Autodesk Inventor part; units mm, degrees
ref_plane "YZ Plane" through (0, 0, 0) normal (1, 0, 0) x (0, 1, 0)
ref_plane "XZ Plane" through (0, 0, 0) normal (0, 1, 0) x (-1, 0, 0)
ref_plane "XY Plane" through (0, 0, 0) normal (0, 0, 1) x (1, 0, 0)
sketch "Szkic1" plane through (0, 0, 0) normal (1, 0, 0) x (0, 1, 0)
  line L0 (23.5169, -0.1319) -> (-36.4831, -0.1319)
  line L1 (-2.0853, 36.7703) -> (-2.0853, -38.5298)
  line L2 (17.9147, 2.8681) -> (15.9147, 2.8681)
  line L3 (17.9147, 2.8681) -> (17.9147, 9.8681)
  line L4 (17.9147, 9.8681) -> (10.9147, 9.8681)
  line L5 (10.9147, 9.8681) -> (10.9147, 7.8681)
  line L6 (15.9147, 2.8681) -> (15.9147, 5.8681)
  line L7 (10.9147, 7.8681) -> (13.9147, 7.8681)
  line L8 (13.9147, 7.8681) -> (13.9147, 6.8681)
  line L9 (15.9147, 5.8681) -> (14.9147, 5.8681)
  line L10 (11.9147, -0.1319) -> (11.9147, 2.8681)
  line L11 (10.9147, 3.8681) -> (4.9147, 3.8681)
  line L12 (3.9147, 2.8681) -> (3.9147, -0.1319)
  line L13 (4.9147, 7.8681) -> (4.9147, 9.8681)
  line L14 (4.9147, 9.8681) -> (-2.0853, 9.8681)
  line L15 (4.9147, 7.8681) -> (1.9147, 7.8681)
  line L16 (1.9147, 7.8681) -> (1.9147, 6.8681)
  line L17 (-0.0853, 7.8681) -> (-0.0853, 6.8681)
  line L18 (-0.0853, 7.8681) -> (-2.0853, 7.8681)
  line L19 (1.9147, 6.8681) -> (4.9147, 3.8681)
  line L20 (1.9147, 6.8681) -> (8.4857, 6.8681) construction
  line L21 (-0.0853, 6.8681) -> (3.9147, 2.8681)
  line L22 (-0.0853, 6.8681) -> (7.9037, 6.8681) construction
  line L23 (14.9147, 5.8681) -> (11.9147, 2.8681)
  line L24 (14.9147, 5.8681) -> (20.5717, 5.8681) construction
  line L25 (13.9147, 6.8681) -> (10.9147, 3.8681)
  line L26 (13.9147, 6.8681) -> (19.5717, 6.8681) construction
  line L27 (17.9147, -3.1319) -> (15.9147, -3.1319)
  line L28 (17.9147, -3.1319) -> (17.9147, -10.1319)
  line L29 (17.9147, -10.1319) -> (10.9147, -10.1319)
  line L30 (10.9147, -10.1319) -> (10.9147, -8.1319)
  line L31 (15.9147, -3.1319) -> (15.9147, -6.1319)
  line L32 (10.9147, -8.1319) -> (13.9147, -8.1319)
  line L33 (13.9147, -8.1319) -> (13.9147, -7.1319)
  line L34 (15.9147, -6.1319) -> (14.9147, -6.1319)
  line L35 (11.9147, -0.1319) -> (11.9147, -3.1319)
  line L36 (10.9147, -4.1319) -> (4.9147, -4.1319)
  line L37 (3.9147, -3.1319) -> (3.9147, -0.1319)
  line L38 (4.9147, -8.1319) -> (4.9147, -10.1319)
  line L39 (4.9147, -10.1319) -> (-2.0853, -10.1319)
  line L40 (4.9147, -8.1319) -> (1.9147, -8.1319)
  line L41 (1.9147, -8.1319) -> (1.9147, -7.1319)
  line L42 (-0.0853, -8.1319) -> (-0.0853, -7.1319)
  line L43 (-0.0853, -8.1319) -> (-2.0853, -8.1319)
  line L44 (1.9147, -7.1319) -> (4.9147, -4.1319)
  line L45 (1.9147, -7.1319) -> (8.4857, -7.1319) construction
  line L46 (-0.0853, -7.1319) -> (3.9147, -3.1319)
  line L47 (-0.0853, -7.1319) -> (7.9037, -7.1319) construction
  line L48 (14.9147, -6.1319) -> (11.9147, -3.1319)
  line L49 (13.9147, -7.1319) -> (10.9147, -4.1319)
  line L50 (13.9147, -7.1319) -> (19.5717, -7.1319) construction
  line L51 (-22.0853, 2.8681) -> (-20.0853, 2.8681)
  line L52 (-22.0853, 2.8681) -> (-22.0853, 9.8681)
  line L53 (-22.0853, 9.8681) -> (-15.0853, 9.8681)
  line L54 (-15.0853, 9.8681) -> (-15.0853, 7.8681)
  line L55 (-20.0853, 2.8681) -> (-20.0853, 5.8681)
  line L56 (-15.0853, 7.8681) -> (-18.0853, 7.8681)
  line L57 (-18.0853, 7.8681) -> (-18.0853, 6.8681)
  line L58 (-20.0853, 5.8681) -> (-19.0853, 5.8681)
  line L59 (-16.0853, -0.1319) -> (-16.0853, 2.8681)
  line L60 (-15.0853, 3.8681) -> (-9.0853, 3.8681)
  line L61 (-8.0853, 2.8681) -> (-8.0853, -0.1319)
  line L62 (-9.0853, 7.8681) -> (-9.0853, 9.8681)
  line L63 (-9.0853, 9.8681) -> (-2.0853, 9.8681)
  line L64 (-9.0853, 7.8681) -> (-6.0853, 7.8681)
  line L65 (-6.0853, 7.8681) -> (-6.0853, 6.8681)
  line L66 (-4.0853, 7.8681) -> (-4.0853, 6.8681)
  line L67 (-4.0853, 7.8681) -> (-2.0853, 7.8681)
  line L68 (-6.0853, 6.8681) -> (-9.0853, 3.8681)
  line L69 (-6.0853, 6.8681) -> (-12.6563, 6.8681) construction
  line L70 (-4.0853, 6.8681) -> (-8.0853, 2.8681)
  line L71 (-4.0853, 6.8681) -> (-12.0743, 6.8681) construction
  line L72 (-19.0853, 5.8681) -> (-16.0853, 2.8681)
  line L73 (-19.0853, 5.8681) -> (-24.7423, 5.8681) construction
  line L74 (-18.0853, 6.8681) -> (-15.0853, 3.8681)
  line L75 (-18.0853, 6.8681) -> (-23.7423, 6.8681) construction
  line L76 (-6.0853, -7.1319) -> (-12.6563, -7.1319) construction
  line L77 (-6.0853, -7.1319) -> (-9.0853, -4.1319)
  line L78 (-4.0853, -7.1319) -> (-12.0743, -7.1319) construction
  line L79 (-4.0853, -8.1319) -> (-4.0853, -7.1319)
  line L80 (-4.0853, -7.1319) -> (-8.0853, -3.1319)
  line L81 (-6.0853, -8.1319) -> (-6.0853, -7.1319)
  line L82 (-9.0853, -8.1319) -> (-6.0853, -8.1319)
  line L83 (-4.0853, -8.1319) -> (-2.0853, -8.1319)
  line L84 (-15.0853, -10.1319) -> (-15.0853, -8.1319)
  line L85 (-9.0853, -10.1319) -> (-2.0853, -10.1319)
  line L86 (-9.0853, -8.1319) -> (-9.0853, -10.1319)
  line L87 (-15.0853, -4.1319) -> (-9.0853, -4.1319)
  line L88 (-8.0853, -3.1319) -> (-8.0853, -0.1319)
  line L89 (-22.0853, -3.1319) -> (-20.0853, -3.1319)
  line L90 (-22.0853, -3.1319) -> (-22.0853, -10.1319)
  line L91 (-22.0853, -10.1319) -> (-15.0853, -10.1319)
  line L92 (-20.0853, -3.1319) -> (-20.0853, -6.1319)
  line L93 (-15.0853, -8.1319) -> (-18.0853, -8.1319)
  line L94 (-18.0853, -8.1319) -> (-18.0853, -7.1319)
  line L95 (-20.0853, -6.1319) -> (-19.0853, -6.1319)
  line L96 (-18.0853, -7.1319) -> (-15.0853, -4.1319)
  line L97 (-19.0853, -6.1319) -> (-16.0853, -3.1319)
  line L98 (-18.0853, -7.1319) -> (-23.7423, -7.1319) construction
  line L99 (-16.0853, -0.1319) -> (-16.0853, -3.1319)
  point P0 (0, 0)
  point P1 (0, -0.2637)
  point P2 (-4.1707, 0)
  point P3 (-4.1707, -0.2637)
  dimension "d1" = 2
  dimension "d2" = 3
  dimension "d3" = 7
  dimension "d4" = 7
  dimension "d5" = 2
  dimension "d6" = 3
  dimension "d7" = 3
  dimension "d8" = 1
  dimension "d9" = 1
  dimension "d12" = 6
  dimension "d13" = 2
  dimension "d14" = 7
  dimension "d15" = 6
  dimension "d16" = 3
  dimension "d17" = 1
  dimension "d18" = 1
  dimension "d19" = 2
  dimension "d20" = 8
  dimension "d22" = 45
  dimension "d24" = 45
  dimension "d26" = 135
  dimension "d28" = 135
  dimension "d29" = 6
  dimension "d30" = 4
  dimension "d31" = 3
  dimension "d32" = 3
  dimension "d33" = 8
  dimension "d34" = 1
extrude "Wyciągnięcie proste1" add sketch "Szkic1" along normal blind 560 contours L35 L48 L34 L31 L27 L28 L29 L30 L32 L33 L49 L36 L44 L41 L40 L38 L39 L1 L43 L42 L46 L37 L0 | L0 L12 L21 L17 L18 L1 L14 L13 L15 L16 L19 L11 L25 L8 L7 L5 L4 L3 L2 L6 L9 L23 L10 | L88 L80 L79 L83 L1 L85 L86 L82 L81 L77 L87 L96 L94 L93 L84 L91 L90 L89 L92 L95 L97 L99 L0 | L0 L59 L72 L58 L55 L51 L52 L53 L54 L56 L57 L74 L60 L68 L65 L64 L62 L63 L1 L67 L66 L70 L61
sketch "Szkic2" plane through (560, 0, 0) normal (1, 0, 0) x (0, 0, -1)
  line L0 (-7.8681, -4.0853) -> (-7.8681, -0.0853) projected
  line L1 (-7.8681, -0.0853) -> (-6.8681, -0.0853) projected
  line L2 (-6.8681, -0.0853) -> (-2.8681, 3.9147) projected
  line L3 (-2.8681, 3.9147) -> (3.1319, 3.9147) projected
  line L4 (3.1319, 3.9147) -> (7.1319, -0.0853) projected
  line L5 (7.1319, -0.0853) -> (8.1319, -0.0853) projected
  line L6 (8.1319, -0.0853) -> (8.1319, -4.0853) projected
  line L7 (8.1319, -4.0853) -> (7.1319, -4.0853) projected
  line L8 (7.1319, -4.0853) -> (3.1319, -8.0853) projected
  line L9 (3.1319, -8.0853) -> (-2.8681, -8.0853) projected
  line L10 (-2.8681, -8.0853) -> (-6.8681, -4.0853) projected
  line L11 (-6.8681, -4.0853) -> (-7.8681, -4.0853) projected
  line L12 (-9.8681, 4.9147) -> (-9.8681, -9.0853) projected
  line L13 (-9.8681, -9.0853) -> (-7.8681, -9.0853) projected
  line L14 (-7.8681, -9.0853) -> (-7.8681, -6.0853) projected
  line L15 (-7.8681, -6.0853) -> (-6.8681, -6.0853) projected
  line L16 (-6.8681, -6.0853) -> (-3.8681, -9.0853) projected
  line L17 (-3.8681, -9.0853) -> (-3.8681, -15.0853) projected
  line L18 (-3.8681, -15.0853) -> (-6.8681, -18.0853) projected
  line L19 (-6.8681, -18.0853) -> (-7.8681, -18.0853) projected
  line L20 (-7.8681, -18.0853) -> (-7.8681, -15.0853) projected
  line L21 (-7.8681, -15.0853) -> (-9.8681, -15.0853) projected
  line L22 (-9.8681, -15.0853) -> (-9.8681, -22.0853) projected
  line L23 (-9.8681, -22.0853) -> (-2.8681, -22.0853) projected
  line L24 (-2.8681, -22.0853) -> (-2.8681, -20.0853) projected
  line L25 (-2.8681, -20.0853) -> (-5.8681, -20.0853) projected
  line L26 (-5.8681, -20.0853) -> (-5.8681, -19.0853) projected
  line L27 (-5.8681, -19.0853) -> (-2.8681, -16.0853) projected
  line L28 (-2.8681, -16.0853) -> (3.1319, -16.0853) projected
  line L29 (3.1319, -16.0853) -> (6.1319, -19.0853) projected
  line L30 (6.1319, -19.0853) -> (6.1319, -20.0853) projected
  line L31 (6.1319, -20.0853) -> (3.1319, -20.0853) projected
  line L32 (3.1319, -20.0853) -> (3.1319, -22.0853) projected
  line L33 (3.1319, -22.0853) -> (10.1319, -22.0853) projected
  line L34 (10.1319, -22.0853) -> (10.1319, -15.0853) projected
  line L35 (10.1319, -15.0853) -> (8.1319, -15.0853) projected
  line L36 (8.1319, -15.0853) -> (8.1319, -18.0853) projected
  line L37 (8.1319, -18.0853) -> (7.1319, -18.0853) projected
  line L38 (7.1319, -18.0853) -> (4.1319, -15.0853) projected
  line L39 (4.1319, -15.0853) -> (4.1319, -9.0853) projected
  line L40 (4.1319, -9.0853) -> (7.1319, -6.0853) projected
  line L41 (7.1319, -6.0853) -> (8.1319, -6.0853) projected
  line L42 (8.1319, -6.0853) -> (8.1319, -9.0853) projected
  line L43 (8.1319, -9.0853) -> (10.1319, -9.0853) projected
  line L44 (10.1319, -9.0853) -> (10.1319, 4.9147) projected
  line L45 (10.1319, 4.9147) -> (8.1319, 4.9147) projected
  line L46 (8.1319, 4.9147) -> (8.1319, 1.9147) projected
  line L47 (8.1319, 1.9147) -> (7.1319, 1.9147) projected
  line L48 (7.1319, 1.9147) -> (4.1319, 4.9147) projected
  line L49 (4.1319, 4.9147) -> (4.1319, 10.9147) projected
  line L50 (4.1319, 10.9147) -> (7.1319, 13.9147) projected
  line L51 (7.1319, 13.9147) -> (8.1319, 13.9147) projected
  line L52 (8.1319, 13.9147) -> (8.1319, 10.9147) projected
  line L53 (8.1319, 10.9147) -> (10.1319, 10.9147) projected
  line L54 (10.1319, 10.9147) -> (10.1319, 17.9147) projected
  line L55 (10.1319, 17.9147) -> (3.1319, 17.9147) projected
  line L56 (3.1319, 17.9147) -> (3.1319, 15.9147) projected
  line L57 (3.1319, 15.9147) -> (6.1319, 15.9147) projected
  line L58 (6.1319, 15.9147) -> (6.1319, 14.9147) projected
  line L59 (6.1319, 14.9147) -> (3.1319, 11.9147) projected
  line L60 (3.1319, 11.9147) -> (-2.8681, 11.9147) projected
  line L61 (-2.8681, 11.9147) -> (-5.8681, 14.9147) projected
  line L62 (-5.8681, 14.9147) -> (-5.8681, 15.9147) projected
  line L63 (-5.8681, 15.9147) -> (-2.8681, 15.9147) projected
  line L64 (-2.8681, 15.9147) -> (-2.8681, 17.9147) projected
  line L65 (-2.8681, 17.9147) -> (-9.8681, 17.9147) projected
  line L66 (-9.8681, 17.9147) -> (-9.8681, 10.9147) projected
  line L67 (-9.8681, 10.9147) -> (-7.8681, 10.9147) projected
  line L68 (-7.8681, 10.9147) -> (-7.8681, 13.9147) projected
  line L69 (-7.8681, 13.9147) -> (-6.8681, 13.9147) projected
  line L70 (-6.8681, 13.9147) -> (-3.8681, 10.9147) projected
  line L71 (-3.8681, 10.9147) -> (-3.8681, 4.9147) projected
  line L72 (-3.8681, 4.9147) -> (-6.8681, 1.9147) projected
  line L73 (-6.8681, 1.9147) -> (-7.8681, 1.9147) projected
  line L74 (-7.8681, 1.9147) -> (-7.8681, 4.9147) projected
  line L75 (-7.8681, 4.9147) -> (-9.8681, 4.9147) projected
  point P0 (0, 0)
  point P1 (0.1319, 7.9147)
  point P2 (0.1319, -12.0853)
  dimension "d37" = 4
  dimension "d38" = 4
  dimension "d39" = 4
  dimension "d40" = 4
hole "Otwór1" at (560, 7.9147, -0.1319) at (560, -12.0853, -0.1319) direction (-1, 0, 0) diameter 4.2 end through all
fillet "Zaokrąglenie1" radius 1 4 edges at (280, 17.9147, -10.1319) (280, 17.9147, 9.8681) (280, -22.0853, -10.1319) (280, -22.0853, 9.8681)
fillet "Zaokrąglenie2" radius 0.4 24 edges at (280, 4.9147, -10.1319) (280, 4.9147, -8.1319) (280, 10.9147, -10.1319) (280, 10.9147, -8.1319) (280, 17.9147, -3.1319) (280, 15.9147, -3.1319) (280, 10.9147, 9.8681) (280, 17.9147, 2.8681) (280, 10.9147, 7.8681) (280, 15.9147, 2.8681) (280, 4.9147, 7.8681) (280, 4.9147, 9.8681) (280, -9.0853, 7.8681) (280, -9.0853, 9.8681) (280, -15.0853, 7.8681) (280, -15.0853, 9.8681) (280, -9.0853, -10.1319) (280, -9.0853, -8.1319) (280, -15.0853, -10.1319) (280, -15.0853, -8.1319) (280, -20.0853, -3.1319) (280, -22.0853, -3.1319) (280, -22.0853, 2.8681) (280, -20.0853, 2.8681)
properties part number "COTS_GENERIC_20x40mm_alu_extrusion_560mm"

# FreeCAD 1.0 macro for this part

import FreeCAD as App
import Part
import Sketcher

V = App.Vector
Q = App.Units.Quantity


def edges_at(feature, points):
    """Names of the edges that pass closest to the given points."""
    edges = feature.Shape.Edges
    near = lambda p: min(range(len(edges)), key=lambda i: edges[i].distToShape(Part.Vertex(*p))[0])
    return sorted({f"Edge{near(p) + 1}" for p in points})

doc = App.newDocument("Part")
body = doc.addObject("PartDesign::Body", "Body")

# Sketch on YZ plane
sketch1 = body.newObject("Sketcher::SketchObject", "Sketch")
sketch1.AttachmentSupport = (doc.getObject("YZ_Plane"), [""])
sketch1.MapMode = "FlatFace"
sketch1.addGeometry([
    Part.LineSegment(V(11.9147, -3.1319, 0), V(11.9147, 2.8681, 0)),  # 0
    Part.LineSegment(V(11.9147, 2.8681, 0), V(14.9147, 5.8681, 0)),  # 1
    Part.LineSegment(V(14.9147, 5.8681, 0), V(15.9147, 5.8681, 0)),  # 2
    Part.LineSegment(V(15.9147, 5.8681, 0), V(15.9147, 2.8681, 0)),  # 3
    Part.LineSegment(V(15.9147, 2.8681, 0), V(17.9147, 2.8681, 0)),  # 4
    Part.LineSegment(V(17.9147, 2.8681, 0), V(17.9147, 9.8681, 0)),  # 5
    Part.LineSegment(V(17.9147, 9.8681, 0), V(10.9147, 9.8681, 0)),  # 6
    Part.LineSegment(V(10.9147, 9.8681, 0), V(10.9147, 7.8681, 0)),  # 7
    Part.LineSegment(V(10.9147, 7.8681, 0), V(13.9147, 7.8681, 0)),  # 8
    Part.LineSegment(V(13.9147, 7.8681, 0), V(13.9147, 6.8681, 0)),  # 9
    Part.LineSegment(V(13.9147, 6.8681, 0), V(10.9147, 3.8681, 0)),  # 10
    Part.LineSegment(V(10.9147, 3.8681, 0), V(4.9147, 3.8681, 0)),  # 11
    Part.LineSegment(V(4.9147, 3.8681, 0), V(1.9147, 6.8681, 0)),  # 12
    Part.LineSegment(V(1.9147, 6.8681, 0), V(1.9147, 7.8681, 0)),  # 13
    Part.LineSegment(V(1.9147, 7.8681, 0), V(4.9147, 7.8681, 0)),  # 14
    Part.LineSegment(V(4.9147, 7.8681, 0), V(4.9147, 9.8681, 0)),  # 15
    Part.LineSegment(V(4.9147, 9.8681, 0), V(-9.0853, 9.8681, 0)),  # 16
    Part.LineSegment(V(-9.0853, 9.8681, 0), V(-9.0853, 7.8681, 0)),  # 17
    Part.LineSegment(V(-9.0853, 7.8681, 0), V(-6.0853, 7.8681, 0)),  # 18
    Part.LineSegment(V(-6.0853, 7.8681, 0), V(-6.0853, 6.8681, 0)),  # 19
    Part.LineSegment(V(-6.0853, 6.8681, 0), V(-9.0853, 3.8681, 0)),  # 20
    Part.LineSegment(V(-9.0853, 3.8681, 0), V(-15.0853, 3.8681, 0)),  # 21
    Part.LineSegment(V(-15.0853, 3.8681, 0), V(-18.0853, 6.8681, 0)),  # 22
    Part.LineSegment(V(-18.0853, 6.8681, 0), V(-18.0853, 7.8681, 0)),  # 23
    Part.LineSegment(V(-18.0853, 7.8681, 0), V(-15.0853, 7.8681, 0)),  # 24
    Part.LineSegment(V(-15.0853, 7.8681, 0), V(-15.0853, 9.8681, 0)),  # 25
    Part.LineSegment(V(-15.0853, 9.8681, 0), V(-22.0853, 9.8681, 0)),  # 26
    Part.LineSegment(V(-22.0853, 9.8681, 0), V(-22.0853, 2.8681, 0)),  # 27
    Part.LineSegment(V(-22.0853, 2.8681, 0), V(-20.0853, 2.8681, 0)),  # 28
    Part.LineSegment(V(-20.0853, 2.8681, 0), V(-20.0853, 5.8681, 0)),  # 29
    Part.LineSegment(V(-20.0853, 5.8681, 0), V(-19.0853, 5.8681, 0)),  # 30
    Part.LineSegment(V(-19.0853, 5.8681, 0), V(-16.0853, 2.8681, 0)),  # 31
    Part.LineSegment(V(-16.0853, 2.8681, 0), V(-16.0853, -3.1319, 0)),  # 32
    Part.LineSegment(V(-16.0853, -3.1319, 0), V(-19.0853, -6.1319, 0)),  # 33
    Part.LineSegment(V(-19.0853, -6.1319, 0), V(-20.0853, -6.1319, 0)),  # 34
    Part.LineSegment(V(-20.0853, -6.1319, 0), V(-20.0853, -3.1319, 0)),  # 35
    Part.LineSegment(V(-20.0853, -3.1319, 0), V(-22.0853, -3.1319, 0)),  # 36
    Part.LineSegment(V(-22.0853, -3.1319, 0), V(-22.0853, -10.1319, 0)),  # 37
    Part.LineSegment(V(-22.0853, -10.1319, 0), V(-15.0853, -10.1319, 0)),  # 38
    Part.LineSegment(V(-15.0853, -10.1319, 0), V(-15.0853, -8.1319, 0)),  # 39
    Part.LineSegment(V(-15.0853, -8.1319, 0), V(-18.0853, -8.1319, 0)),  # 40
    Part.LineSegment(V(-18.0853, -8.1319, 0), V(-18.0853, -7.1319, 0)),  # 41
    Part.LineSegment(V(-18.0853, -7.1319, 0), V(-15.0853, -4.1319, 0)),  # 42
    Part.LineSegment(V(-15.0853, -4.1319, 0), V(-9.0853, -4.1319, 0)),  # 43
    Part.LineSegment(V(-9.0853, -4.1319, 0), V(-6.0853, -7.1319, 0)),  # 44
    Part.LineSegment(V(-6.0853, -7.1319, 0), V(-6.0853, -8.1319, 0)),  # 45
    Part.LineSegment(V(-6.0853, -8.1319, 0), V(-9.0853, -8.1319, 0)),  # 46
    Part.LineSegment(V(-9.0853, -8.1319, 0), V(-9.0853, -10.1319, 0)),  # 47
    Part.LineSegment(V(-9.0853, -10.1319, 0), V(4.9147, -10.1319, 0)),  # 48
    Part.LineSegment(V(4.9147, -10.1319, 0), V(4.9147, -8.1319, 0)),  # 49
    Part.LineSegment(V(4.9147, -8.1319, 0), V(1.9147, -8.1319, 0)),  # 50
    Part.LineSegment(V(1.9147, -8.1319, 0), V(1.9147, -7.1319, 0)),  # 51
    Part.LineSegment(V(1.9147, -7.1319, 0), V(4.9147, -4.1319, 0)),  # 52
    Part.LineSegment(V(4.9147, -4.1319, 0), V(10.9147, -4.1319, 0)),  # 53
    Part.LineSegment(V(10.9147, -4.1319, 0), V(13.9147, -7.1319, 0)),  # 54
    Part.LineSegment(V(13.9147, -7.1319, 0), V(13.9147, -8.1319, 0)),  # 55
    Part.LineSegment(V(13.9147, -8.1319, 0), V(10.9147, -8.1319, 0)),  # 56
    Part.LineSegment(V(10.9147, -8.1319, 0), V(10.9147, -10.1319, 0)),  # 57
    Part.LineSegment(V(10.9147, -10.1319, 0), V(17.9147, -10.1319, 0)),  # 58
    Part.LineSegment(V(17.9147, -10.1319, 0), V(17.9147, -3.1319, 0)),  # 59
    Part.LineSegment(V(17.9147, -3.1319, 0), V(15.9147, -3.1319, 0)),  # 60
    Part.LineSegment(V(15.9147, -3.1319, 0), V(15.9147, -6.1319, 0)),  # 61
    Part.LineSegment(V(15.9147, -6.1319, 0), V(14.9147, -6.1319, 0)),  # 62
    Part.LineSegment(V(14.9147, -6.1319, 0), V(11.9147, -3.1319, 0)),  # 63
    Part.LineSegment(V(-0.0853, -8.1319, 0), V(-4.0853, -8.1319, 0)),  # 64
    Part.LineSegment(V(-4.0853, -8.1319, 0), V(-4.0853, -7.1319, 0)),  # 65
    Part.LineSegment(V(-4.0853, -7.1319, 0), V(-8.0853, -3.1319, 0)),  # 66
    Part.LineSegment(V(-8.0853, -3.1319, 0), V(-8.0853, 2.8681, 0)),  # 67
    Part.LineSegment(V(-8.0853, 2.8681, 0), V(-4.0853, 6.8681, 0)),  # 68
    Part.LineSegment(V(-4.0853, 6.8681, 0), V(-4.0853, 7.8681, 0)),  # 69
    Part.LineSegment(V(-4.0853, 7.8681, 0), V(-0.0853, 7.8681, 0)),  # 70
    Part.LineSegment(V(-0.0853, 7.8681, 0), V(-0.0853, 6.8681, 0)),  # 71
    Part.LineSegment(V(-0.0853, 6.8681, 0), V(3.9147, 2.8681, 0)),  # 72
    Part.LineSegment(V(3.9147, 2.8681, 0), V(3.9147, -3.1319, 0)),  # 73
    Part.LineSegment(V(3.9147, -3.1319, 0), V(-0.0853, -7.1319, 0)),  # 74
    Part.LineSegment(V(-0.0853, -7.1319, 0), V(-0.0853, -8.1319, 0)),  # 75
], False)
sketch1.addConstraint([
    Sketcher.Constraint("Coincident", 0, 2, 1, 1),
    Sketcher.Constraint("Coincident", 1, 2, 2, 1),
    Sketcher.Constraint("Coincident", 2, 2, 3, 1),
    Sketcher.Constraint("Coincident", 3, 2, 4, 1),
    Sketcher.Constraint("Coincident", 4, 2, 5, 1),
    Sketcher.Constraint("Coincident", 5, 2, 6, 1),
    Sketcher.Constraint("Coincident", 6, 2, 7, 1),
    Sketcher.Constraint("Coincident", 7, 2, 8, 1),
    Sketcher.Constraint("Coincident", 8, 2, 9, 1),
    Sketcher.Constraint("Coincident", 9, 2, 10, 1),
    Sketcher.Constraint("Coincident", 10, 2, 11, 1),
    Sketcher.Constraint("Coincident", 11, 2, 12, 1),
    Sketcher.Constraint("Coincident", 12, 2, 13, 1),
    Sketcher.Constraint("Coincident", 13, 2, 14, 1),
    Sketcher.Constraint("Coincident", 14, 2, 15, 1),
    Sketcher.Constraint("Coincident", 15, 2, 16, 1),
    Sketcher.Constraint("Coincident", 16, 2, 17, 1),
    Sketcher.Constraint("Coincident", 17, 2, 18, 1),
    Sketcher.Constraint("Coincident", 18, 2, 19, 1),
    Sketcher.Constraint("Coincident", 19, 2, 20, 1),
    Sketcher.Constraint("Coincident", 20, 2, 21, 1),
    Sketcher.Constraint("Coincident", 21, 2, 22, 1),
    Sketcher.Constraint("Coincident", 22, 2, 23, 1),
    Sketcher.Constraint("Coincident", 23, 2, 24, 1),
    Sketcher.Constraint("Coincident", 24, 2, 25, 1),
    Sketcher.Constraint("Coincident", 25, 2, 26, 1),
    Sketcher.Constraint("Coincident", 26, 2, 27, 1),
    Sketcher.Constraint("Coincident", 27, 2, 28, 1),
    Sketcher.Constraint("Coincident", 28, 2, 29, 1),
    Sketcher.Constraint("Coincident", 29, 2, 30, 1),
    Sketcher.Constraint("Coincident", 30, 2, 31, 1),
    Sketcher.Constraint("Coincident", 31, 2, 32, 1),
    Sketcher.Constraint("Coincident", 32, 2, 33, 1),
    Sketcher.Constraint("Coincident", 33, 2, 34, 1),
    Sketcher.Constraint("Coincident", 34, 2, 35, 1),
    Sketcher.Constraint("Coincident", 35, 2, 36, 1),
    Sketcher.Constraint("Coincident", 36, 2, 37, 1),
    Sketcher.Constraint("Coincident", 37, 2, 38, 1),
    Sketcher.Constraint("Coincident", 38, 2, 39, 1),
    Sketcher.Constraint("Coincident", 39, 2, 40, 1),
    Sketcher.Constraint("Coincident", 40, 2, 41, 1),
    Sketcher.Constraint("Coincident", 41, 2, 42, 1),
    Sketcher.Constraint("Coincident", 42, 2, 43, 1),
    Sketcher.Constraint("Coincident", 43, 2, 44, 1),
    Sketcher.Constraint("Coincident", 44, 2, 45, 1),
    Sketcher.Constraint("Coincident", 45, 2, 46, 1),
    Sketcher.Constraint("Coincident", 46, 2, 47, 1),
    Sketcher.Constraint("Coincident", 47, 2, 48, 1),
    Sketcher.Constraint("Coincident", 48, 2, 49, 1),
    Sketcher.Constraint("Coincident", 49, 2, 50, 1),
    Sketcher.Constraint("Coincident", 50, 2, 51, 1),
    Sketcher.Constraint("Coincident", 51, 2, 52, 1),
    Sketcher.Constraint("Coincident", 52, 2, 53, 1),
    Sketcher.Constraint("Coincident", 53, 2, 54, 1),
    Sketcher.Constraint("Coincident", 54, 2, 55, 1),
    Sketcher.Constraint("Coincident", 55, 2, 56, 1),
    Sketcher.Constraint("Coincident", 56, 2, 57, 1),
    Sketcher.Constraint("Coincident", 57, 2, 58, 1),
    Sketcher.Constraint("Coincident", 58, 2, 59, 1),
    Sketcher.Constraint("Coincident", 59, 2, 60, 1),
    Sketcher.Constraint("Coincident", 60, 2, 61, 1),
    Sketcher.Constraint("Coincident", 61, 2, 62, 1),
    Sketcher.Constraint("Coincident", 62, 2, 63, 1),
    Sketcher.Constraint("Coincident", 63, 2, 0, 1),
    Sketcher.Constraint("Coincident", 64, 2, 65, 1),
    Sketcher.Constraint("Coincident", 65, 2, 66, 1),
    Sketcher.Constraint("Coincident", 66, 2, 67, 1),
    Sketcher.Constraint("Coincident", 67, 2, 68, 1),
    Sketcher.Constraint("Coincident", 68, 2, 69, 1),
    Sketcher.Constraint("Coincident", 69, 2, 70, 1),
    Sketcher.Constraint("Coincident", 70, 2, 71, 1),
    Sketcher.Constraint("Coincident", 71, 2, 72, 1),
    Sketcher.Constraint("Coincident", 72, 2, 73, 1),
    Sketcher.Constraint("Coincident", 73, 2, 74, 1),
    Sketcher.Constraint("Coincident", 74, 2, 75, 1),
    Sketcher.Constraint("Coincident", 75, 2, 64, 1),
    Sketcher.Constraint("Vertical", 0),
    Sketcher.Constraint("Horizontal", 2),
    Sketcher.Constraint("Vertical", 3),
    Sketcher.Constraint("Horizontal", 4),
    Sketcher.Constraint("Vertical", 5),
    Sketcher.Constraint("Horizontal", 6),
    Sketcher.Constraint("Vertical", 7),
    Sketcher.Constraint("Horizontal", 8),
    Sketcher.Constraint("Vertical", 9),
    Sketcher.Constraint("Horizontal", 11),
    Sketcher.Constraint("Vertical", 13),
    Sketcher.Constraint("Horizontal", 14),
    Sketcher.Constraint("Vertical", 15),
    Sketcher.Constraint("Horizontal", 16),
    Sketcher.Constraint("Vertical", 17),
    Sketcher.Constraint("Horizontal", 18),
    Sketcher.Constraint("Vertical", 19),
    Sketcher.Constraint("Horizontal", 21),
    Sketcher.Constraint("Vertical", 23),
    Sketcher.Constraint("Horizontal", 24),
    Sketcher.Constraint("Vertical", 25),
    Sketcher.Constraint("Horizontal", 26),
    Sketcher.Constraint("Vertical", 27),
    Sketcher.Constraint("Horizontal", 28),
    Sketcher.Constraint("Vertical", 29),
    Sketcher.Constraint("Horizontal", 30),
    Sketcher.Constraint("Vertical", 32),
    Sketcher.Constraint("Horizontal", 34),
    Sketcher.Constraint("Vertical", 35),
    Sketcher.Constraint("Horizontal", 36),
    Sketcher.Constraint("Vertical", 37),
    Sketcher.Constraint("Horizontal", 38),
    Sketcher.Constraint("Vertical", 39),
    Sketcher.Constraint("Horizontal", 40),
    Sketcher.Constraint("Vertical", 41),
    Sketcher.Constraint("Horizontal", 43),
    Sketcher.Constraint("Vertical", 45),
    Sketcher.Constraint("Horizontal", 46),
    Sketcher.Constraint("Vertical", 47),
    Sketcher.Constraint("Horizontal", 48),
    Sketcher.Constraint("Vertical", 49),
    Sketcher.Constraint("Horizontal", 50),
    Sketcher.Constraint("Vertical", 51),
    Sketcher.Constraint("Horizontal", 53),
    Sketcher.Constraint("Vertical", 55),
    Sketcher.Constraint("Horizontal", 56),
    Sketcher.Constraint("Vertical", 57),
    Sketcher.Constraint("Horizontal", 58),
    Sketcher.Constraint("Vertical", 59),
    Sketcher.Constraint("Horizontal", 60),
    Sketcher.Constraint("Vertical", 61),
    Sketcher.Constraint("Horizontal", 62),
    Sketcher.Constraint("Horizontal", 64),
    Sketcher.Constraint("Vertical", 65),
    Sketcher.Constraint("Vertical", 67),
    Sketcher.Constraint("Vertical", 69),
    Sketcher.Constraint("Horizontal", 70),
    Sketcher.Constraint("Vertical", 71),
    Sketcher.Constraint("Vertical", 73),
    Sketcher.Constraint("Vertical", 75),
    Sketcher.Constraint("Parallel", 1, 10),
    Sketcher.Constraint("Perpendicular", 10, 12),
    Sketcher.Constraint("Perpendicular", 12, 20),
    Sketcher.Constraint("Perpendicular", 20, 22),
    Sketcher.Constraint("Parallel", 22, 31),
    Sketcher.Constraint("Perpendicular", 31, 33),
    Sketcher.Constraint("Parallel", 33, 42),
    Sketcher.Constraint("Perpendicular", 42, 44),
    Sketcher.Constraint("Perpendicular", 44, 52),
    Sketcher.Constraint("Perpendicular", 52, 54),
    Sketcher.Constraint("Parallel", 54, 63),
    Sketcher.Constraint("Parallel", 63, 66),
    Sketcher.Constraint("Perpendicular", 66, 68),
    Sketcher.Constraint("Perpendicular", 68, 72),
    Sketcher.Constraint("Perpendicular", 72, 74),
    Sketcher.Constraint("Horizontal", 0, 2, 3, 2),
    Sketcher.Constraint("Horizontal", 9, 2, 12, 2),
    Sketcher.Constraint("Horizontal", 8, 2, 13, 2),
    Sketcher.Constraint("Horizontal", 6, 2, 15, 2),
    Sketcher.Constraint("Horizontal", 14, 2, 17, 2),
    Sketcher.Constraint("Horizontal", 12, 2, 19, 2),
    Sketcher.Constraint("Horizontal", 11, 2, 20, 2),
    Sketcher.Constraint("Horizontal", 19, 2, 22, 2),
    Sketcher.Constraint("Horizontal", 18, 2, 23, 2),
    Sketcher.Constraint("Horizontal", 16, 2, 25, 2),
    Sketcher.Constraint("Horizontal", 4, 2, 27, 2),
    Sketcher.Constraint("Horizontal", 2, 2, 29, 2),
    Sketcher.Constraint("Horizontal", 28, 2, 31, 2),
    Sketcher.Constraint("Horizontal", 32, 2, 35, 2),
    Sketcher.Constraint("Horizontal", 41, 2, 44, 2),
    Sketcher.Constraint("Horizontal", 40, 2, 45, 2),
    Sketcher.Constraint("Horizontal", 38, 2, 47, 2),
    Sketcher.Constraint("Horizontal", 46, 2, 49, 2),
    Sketcher.Constraint("Horizontal", 44, 2, 51, 2),
    Sketcher.Constraint("Horizontal", 43, 2, 52, 2),
    Sketcher.Constraint("Horizontal", 51, 2, 54, 2),
    Sketcher.Constraint("Horizontal", 50, 2, 55, 2),
    Sketcher.Constraint("Horizontal", 48, 2, 57, 2),
    Sketcher.Constraint("Horizontal", 36, 2, 59, 2),
    Sketcher.Constraint("Horizontal", 34, 2, 61, 2),
    Sketcher.Constraint("Horizontal", 60, 2, 63, 2),
    Sketcher.Constraint("Horizontal", 56, 2, 64, 2),
    Sketcher.Constraint("Horizontal", 54, 2, 65, 2),
    Sketcher.Constraint("Horizontal", 63, 2, 66, 2),
    Sketcher.Constraint("Horizontal", 31, 2, 67, 2),
    Sketcher.Constraint("Horizontal", 22, 2, 68, 2),
    Sketcher.Constraint("Horizontal", 24, 2, 69, 2),
    Sketcher.Constraint("Horizontal", 68, 2, 71, 2),
    Sketcher.Constraint("Horizontal", 67, 2, 72, 2),
    Sketcher.Constraint("Horizontal", 66, 2, 73, 2),
    Sketcher.Constraint("Horizontal", 65, 2, 74, 2),
    Sketcher.Constraint("Vertical", 7, 2, 10, 2),
    Sketcher.Constraint("Vertical", 11, 2, 14, 2),
    Sketcher.Constraint("Vertical", 17, 2, 20, 2),
    Sketcher.Constraint("Vertical", 21, 2, 24, 2),
    Sketcher.Constraint("Vertical", 30, 2, 33, 2),
    Sketcher.Constraint("Vertical", 29, 2, 34, 2),
    Sketcher.Constraint("Vertical", 27, 2, 36, 2),
    Sketcher.Constraint("Vertical", 25, 2, 38, 2),
    Sketcher.Constraint("Vertical", 23, 2, 40, 2),
    Sketcher.Constraint("Vertical", 39, 2, 42, 2),
    Sketcher.Constraint("Vertical", 20, 2, 43, 2),
    Sketcher.Constraint("Vertical", 19, 2, 44, 2),
    Sketcher.Constraint("Vertical", 43, 2, 46, 2),
    Sketcher.Constraint("Vertical", 15, 2, 48, 2),
    Sketcher.Constraint("Vertical", 13, 2, 50, 2),
    Sketcher.Constraint("Vertical", 10, 2, 53, 2),
    Sketcher.Constraint("Vertical", 53, 2, 56, 2),
    Sketcher.Constraint("Vertical", 5, 2, 58, 2),
    Sketcher.Constraint("Vertical", 3, 2, 60, 2),
    Sketcher.Constraint("Vertical", 65, 2, 68, 2),
    Sketcher.Constraint("Equal", 11, 21),
    Sketcher.Constraint("Equal", 6, 26),
    Sketcher.Constraint("Equal", 4, 28),
    Sketcher.Constraint("Equal", 2, 30),
    Sketcher.Constraint("Equal", 53, 0),
    Sketcher.Constraint("Equal", 56, 3),
    Sketcher.Constraint("Equal", 58, 5),
    Sketcher.Constraint("Equal", 60, 7),
    Sketcher.Constraint("Equal", 62, 9),
    Sketcher.Constraint("Equal", 27, 37),
    Sketcher.Constraint("Equal", 25, 39),
    Sketcher.Constraint("DistanceX", 2, 1, 2, 2, Q("1 mm")),
    Sketcher.Constraint("DistanceX", 4, 1, 4, 2, Q("2 mm")),
    Sketcher.Constraint("DistanceX", 6, 2, 6, 1, Q("7 mm")),
    Sketcher.Constraint("DistanceX", 8, 1, 8, 2, Q("3 mm")),
    Sketcher.Constraint("DistanceX", 11, 2, 11, 1, Q("6 mm")),
    Sketcher.Constraint("DistanceX", 64, 2, 64, 1, Q("4 mm")),
    Sketcher.Constraint("DistanceX", 16, 2, 16, 1, Q("14 mm")),
    Sketcher.Constraint("DistanceY", -1, 1, 0, 2, Q("2.868 mm")),
    Sketcher.Constraint("DistanceX", -1, 1, 0, 2, Q("11.9147 mm")),
    Sketcher.Constraint("DistanceX", 64, 2, -1, 1, Q("4.0853 mm")),
])
pad1 = body.newObject("PartDesign::Pad", "Pad")
pad1.Profile = sketch1
pad1.Length = 560

# Sketch on YZ plane
sketch2 = body.newObject("Sketcher::SketchObject", "Sketch001")
sketch2.AttachmentSupport = (doc.getObject("YZ_Plane"), [""])
sketch2.MapMode = "FlatFace"
sketch2.AttachmentOffset = App.Placement(V(0, 0, 560), App.Rotation())
sketch2.addGeometry([
    Part.Circle(V(7.9147, -0.1319, 0), V(0, 0, 1), 2.1),
    Part.Circle(V(-12.0853, -0.1319, 0), V(0, 0, 1), 2.1),
], False)
sketch2.addConstraint([
    Sketcher.Constraint("Equal", 0, 1),
    Sketcher.Constraint("Horizontal", 0, 3, 1, 3),
    Sketcher.Constraint("Diameter", 0, Q("4.2 mm")),
    Sketcher.Constraint("DistanceX", 1, 3, 0, 3, Q("20 mm")),
    Sketcher.Constraint("DistanceY", 0, 3, -1, 1, Q("0.132 mm")),
    Sketcher.Constraint("DistanceX", -1, 1, 0, 3, Q("7.9147 mm")),
])
doc.recompute()
hole = body.newObject("PartDesign::Hole", "Hole")
hole.Profile = sketch2
hole.ThreadType = "None"
hole.Diameter = 4.2
hole.DepthType = "ThroughAll"
doc.recompute()

fillet = body.newObject("PartDesign::Fillet", "Fillet")
fillet.Base = (hole, edges_at(hole, [
    (280, 17.915, -10.132),
    (280, 17.915, 9.868),
    (280, -22.085, -10.132),
    (280, -22.085, 9.868),
]))
fillet.Radius = 1
doc.recompute()

fillet2 = body.newObject("PartDesign::Fillet", "Fillet001")
fillet2.Base = (fillet, edges_at(fillet, [
    (280, 4.915, -10.132),
    (280, 4.915, -8.132),
    (280, 10.915, -10.132),
    (280, 10.915, -8.132),
    (280, 17.915, -3.132),
    (280, 15.915, -3.132),
    (280, 10.915, 9.868),
    (280, 17.915, 2.868),
    (280, 10.915, 7.868),
    (280, 15.915, 2.868),
    (280, 4.915, 7.868),
    (280, 4.915, 9.868),
    (280, -9.085, 7.868),
    (280, -9.085, 9.868),
    (280, -15.085, 7.868),
    (280, -15.085, 9.868),
    (280, -9.085, -10.132),
    (280, -9.085, -8.132),
    (280, -15.085, -10.132),
    (280, -15.085, -8.132),
    (280, -20.085, -3.132),
    (280, -22.085, -3.132),
    (280, -22.085, 2.868),
    (280, -20.085, 2.868),
]))
fillet2.Radius = 0.4

doc.recompute()
